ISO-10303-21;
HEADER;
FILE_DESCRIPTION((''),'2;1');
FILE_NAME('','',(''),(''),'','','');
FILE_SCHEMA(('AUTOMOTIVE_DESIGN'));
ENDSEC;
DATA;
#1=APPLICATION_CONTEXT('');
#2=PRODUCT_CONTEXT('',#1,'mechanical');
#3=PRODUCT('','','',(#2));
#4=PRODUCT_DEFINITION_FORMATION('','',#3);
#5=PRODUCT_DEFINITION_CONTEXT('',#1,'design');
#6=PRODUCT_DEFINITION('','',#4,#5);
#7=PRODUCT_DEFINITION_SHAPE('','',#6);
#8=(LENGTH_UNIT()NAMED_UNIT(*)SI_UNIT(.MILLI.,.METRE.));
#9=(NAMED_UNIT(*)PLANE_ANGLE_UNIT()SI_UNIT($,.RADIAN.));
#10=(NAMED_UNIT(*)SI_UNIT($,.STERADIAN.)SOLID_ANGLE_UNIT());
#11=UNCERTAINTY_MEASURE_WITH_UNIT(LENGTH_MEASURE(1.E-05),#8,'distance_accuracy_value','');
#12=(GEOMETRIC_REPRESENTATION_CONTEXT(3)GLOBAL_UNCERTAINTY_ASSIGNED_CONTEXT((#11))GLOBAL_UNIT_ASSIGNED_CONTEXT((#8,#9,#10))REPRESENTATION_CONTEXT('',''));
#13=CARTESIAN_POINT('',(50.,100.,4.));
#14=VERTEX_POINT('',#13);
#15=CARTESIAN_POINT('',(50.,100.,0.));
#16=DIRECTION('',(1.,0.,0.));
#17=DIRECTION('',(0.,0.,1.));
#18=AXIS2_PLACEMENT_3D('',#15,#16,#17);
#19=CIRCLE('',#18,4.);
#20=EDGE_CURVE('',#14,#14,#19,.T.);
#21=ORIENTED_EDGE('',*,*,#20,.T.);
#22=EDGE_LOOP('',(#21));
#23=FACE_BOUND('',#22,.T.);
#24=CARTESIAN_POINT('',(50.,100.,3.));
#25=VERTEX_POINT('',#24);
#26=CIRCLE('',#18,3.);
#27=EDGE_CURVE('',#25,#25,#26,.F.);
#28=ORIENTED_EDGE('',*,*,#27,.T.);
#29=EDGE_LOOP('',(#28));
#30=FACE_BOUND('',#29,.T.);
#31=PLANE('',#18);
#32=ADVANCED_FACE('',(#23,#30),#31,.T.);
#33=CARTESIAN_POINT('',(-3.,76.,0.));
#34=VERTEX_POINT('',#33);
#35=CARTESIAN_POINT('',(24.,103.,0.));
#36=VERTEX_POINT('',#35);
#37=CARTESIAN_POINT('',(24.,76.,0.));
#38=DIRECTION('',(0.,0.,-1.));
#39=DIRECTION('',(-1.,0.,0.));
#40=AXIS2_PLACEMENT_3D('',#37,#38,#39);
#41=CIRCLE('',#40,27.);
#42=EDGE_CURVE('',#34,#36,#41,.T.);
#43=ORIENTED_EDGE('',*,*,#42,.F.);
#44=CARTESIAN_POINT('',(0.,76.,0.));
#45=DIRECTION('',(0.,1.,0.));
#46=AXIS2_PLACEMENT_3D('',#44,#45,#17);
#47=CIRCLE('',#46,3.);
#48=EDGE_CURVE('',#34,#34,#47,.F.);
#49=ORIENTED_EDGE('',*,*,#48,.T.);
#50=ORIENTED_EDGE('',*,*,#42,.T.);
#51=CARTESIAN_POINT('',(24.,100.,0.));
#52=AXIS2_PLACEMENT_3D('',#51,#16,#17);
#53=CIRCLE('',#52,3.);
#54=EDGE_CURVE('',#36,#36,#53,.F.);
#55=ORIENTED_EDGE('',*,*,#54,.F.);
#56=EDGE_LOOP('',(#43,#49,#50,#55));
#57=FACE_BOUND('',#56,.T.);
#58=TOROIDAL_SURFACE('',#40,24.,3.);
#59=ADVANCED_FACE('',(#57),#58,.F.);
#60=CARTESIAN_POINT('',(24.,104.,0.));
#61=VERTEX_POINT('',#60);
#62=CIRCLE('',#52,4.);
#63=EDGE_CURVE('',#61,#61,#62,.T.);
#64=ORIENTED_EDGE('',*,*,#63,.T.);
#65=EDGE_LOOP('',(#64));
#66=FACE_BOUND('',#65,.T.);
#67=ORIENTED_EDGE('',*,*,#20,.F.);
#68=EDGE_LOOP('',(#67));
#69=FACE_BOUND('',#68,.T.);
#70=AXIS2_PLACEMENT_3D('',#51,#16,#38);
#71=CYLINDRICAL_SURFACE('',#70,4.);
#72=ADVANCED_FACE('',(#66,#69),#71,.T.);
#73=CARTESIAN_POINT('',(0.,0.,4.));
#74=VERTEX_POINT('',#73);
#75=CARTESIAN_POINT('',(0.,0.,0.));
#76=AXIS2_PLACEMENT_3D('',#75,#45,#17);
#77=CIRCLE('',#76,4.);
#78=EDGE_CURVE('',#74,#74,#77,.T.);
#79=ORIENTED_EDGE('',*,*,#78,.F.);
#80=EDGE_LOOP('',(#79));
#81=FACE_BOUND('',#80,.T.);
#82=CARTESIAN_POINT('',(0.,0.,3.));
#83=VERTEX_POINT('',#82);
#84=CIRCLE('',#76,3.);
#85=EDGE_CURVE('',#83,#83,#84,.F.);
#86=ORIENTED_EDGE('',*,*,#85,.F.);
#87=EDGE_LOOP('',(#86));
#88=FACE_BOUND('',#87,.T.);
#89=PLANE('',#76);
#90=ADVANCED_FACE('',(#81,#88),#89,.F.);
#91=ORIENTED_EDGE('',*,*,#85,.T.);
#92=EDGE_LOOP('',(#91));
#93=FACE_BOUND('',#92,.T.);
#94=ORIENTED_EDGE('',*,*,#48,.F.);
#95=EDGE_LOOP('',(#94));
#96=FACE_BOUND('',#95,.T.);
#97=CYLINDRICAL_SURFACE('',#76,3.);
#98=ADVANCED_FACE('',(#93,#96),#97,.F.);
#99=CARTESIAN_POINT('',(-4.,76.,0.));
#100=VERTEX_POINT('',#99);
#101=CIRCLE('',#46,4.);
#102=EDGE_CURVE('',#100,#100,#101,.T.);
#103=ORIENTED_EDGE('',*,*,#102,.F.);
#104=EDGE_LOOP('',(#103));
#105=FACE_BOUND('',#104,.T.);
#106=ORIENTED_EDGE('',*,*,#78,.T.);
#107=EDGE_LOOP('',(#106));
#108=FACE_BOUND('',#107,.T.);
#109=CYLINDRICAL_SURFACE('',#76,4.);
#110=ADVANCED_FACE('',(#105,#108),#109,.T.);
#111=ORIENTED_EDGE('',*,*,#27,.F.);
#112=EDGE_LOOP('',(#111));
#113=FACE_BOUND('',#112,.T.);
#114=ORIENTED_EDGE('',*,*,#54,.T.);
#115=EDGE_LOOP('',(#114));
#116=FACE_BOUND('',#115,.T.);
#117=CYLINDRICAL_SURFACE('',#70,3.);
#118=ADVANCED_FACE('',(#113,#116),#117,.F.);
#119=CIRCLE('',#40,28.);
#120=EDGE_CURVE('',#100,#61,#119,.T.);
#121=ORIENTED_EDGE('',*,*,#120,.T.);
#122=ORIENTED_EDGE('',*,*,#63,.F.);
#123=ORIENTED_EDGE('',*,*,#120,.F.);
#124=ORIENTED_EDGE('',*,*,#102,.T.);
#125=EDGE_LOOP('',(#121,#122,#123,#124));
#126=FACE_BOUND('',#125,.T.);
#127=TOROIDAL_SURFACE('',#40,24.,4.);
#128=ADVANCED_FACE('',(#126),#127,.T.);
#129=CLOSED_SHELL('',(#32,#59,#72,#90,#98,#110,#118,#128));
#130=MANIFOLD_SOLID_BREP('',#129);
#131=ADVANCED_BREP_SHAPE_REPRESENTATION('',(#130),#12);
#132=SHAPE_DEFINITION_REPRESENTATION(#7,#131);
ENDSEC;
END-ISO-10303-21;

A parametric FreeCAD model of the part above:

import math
import FreeCAD as App
import Part
import Sketcher
Q = App.Units.Quantity

doc = App.newDocument("Part")
params = doc.addObject("Spreadsheet::Sheet", "Params")
for row, (alias, value) in enumerate([
    ("sketch1_diameter", "8 mm"),
    ("sketch1_diameter2", "6 mm"),
    ("sketch2_radius", "24 mm"),
    ("sketch2_width", "26 mm"),
    ("sketch2_height", "76 mm"),
], start=1):
    params.set(f"A{row}", alias)
    params.set(f"B{row}", "=" + value)
    params.setAlias(f"B{row}", alias)

body = doc.addObject("PartDesign::Body", "Body")

sketch1 = body.newObject("Sketcher::SketchObject", "Sketch")
sketch1.AttachmentSupport = (doc.getObject("XZ_Plane"), [""])
sketch1.MapMode = "FlatFace"
sketch1.addGeometry([
    Part.Circle(App.Vector(0, 0, 0), App.Vector(0, 0, 1), 4),
    Part.Circle(App.Vector(0, 0, 0), App.Vector(0, 0, 1), 3),
], False)
sketch1.addConstraint([
    Sketcher.Constraint("Coincident", 0, 3, -1, 1),
    Sketcher.Constraint("Coincident", 1, 3, -1, 1),
    Sketcher.Constraint("Diameter", 0, Q("8 mm")),
    Sketcher.Constraint("Diameter", 1, Q("6 mm")),
])
sketch1.setExpression("Constraints[2]", "Params.sketch1_diameter")
sketch1.setExpression("Constraints[3]", "Params.sketch1_diameter2")

sketch2 = body.newObject("Sketcher::SketchObject", "Sketch001")
sketch2.AttachmentSupport = (doc.getObject("XY_Plane"), [""])
sketch2.MapMode = "FlatFace"
sketch2.addGeometry([
    Part.LineSegment(App.Vector(0, 0, 0), App.Vector(0, 76, 0)),
    Part.ArcOfCircle(Part.Circle(App.Vector(24, 76, 0), App.Vector(0, 0, 1), 24), math.radians(90), math.radians(180)),
    Part.LineSegment(App.Vector(24, 100, 0), App.Vector(50, 100, 0)),
], False)
sketch2.addConstraint([
    Sketcher.Constraint("Tangent", 0, 2, 1, 2),
    Sketcher.Constraint("Tangent", 1, 1, 2, 1),
    Sketcher.Constraint("Vertical", 0),
    Sketcher.Constraint("Horizontal", 2),
    Sketcher.Constraint("Coincident", 0, 1, -1, 1),
    Sketcher.Constraint("Radius", 1, Q("24 mm")),
    Sketcher.Constraint("DistanceX", 2, 1, 2, 2, Q("26 mm")),
    Sketcher.Constraint("DistanceY", 0, 1, 0, 2, Q("76 mm")),
])
sketch2.setExpression("Constraints[5]", "Params.sketch2_radius")
sketch2.setExpression("Constraints[6]", "Params.sketch2_width")
sketch2.setExpression("Constraints[7]", "Params.sketch2_height")
doc.recompute()

additivepipe = body.newObject("PartDesign::AdditivePipe", "AdditivePipe")
additivepipe.Profile = sketch1
additivepipe.Spine = (sketch2, ["Edge1", "Edge2", "Edge3"])

doc.recompute()
